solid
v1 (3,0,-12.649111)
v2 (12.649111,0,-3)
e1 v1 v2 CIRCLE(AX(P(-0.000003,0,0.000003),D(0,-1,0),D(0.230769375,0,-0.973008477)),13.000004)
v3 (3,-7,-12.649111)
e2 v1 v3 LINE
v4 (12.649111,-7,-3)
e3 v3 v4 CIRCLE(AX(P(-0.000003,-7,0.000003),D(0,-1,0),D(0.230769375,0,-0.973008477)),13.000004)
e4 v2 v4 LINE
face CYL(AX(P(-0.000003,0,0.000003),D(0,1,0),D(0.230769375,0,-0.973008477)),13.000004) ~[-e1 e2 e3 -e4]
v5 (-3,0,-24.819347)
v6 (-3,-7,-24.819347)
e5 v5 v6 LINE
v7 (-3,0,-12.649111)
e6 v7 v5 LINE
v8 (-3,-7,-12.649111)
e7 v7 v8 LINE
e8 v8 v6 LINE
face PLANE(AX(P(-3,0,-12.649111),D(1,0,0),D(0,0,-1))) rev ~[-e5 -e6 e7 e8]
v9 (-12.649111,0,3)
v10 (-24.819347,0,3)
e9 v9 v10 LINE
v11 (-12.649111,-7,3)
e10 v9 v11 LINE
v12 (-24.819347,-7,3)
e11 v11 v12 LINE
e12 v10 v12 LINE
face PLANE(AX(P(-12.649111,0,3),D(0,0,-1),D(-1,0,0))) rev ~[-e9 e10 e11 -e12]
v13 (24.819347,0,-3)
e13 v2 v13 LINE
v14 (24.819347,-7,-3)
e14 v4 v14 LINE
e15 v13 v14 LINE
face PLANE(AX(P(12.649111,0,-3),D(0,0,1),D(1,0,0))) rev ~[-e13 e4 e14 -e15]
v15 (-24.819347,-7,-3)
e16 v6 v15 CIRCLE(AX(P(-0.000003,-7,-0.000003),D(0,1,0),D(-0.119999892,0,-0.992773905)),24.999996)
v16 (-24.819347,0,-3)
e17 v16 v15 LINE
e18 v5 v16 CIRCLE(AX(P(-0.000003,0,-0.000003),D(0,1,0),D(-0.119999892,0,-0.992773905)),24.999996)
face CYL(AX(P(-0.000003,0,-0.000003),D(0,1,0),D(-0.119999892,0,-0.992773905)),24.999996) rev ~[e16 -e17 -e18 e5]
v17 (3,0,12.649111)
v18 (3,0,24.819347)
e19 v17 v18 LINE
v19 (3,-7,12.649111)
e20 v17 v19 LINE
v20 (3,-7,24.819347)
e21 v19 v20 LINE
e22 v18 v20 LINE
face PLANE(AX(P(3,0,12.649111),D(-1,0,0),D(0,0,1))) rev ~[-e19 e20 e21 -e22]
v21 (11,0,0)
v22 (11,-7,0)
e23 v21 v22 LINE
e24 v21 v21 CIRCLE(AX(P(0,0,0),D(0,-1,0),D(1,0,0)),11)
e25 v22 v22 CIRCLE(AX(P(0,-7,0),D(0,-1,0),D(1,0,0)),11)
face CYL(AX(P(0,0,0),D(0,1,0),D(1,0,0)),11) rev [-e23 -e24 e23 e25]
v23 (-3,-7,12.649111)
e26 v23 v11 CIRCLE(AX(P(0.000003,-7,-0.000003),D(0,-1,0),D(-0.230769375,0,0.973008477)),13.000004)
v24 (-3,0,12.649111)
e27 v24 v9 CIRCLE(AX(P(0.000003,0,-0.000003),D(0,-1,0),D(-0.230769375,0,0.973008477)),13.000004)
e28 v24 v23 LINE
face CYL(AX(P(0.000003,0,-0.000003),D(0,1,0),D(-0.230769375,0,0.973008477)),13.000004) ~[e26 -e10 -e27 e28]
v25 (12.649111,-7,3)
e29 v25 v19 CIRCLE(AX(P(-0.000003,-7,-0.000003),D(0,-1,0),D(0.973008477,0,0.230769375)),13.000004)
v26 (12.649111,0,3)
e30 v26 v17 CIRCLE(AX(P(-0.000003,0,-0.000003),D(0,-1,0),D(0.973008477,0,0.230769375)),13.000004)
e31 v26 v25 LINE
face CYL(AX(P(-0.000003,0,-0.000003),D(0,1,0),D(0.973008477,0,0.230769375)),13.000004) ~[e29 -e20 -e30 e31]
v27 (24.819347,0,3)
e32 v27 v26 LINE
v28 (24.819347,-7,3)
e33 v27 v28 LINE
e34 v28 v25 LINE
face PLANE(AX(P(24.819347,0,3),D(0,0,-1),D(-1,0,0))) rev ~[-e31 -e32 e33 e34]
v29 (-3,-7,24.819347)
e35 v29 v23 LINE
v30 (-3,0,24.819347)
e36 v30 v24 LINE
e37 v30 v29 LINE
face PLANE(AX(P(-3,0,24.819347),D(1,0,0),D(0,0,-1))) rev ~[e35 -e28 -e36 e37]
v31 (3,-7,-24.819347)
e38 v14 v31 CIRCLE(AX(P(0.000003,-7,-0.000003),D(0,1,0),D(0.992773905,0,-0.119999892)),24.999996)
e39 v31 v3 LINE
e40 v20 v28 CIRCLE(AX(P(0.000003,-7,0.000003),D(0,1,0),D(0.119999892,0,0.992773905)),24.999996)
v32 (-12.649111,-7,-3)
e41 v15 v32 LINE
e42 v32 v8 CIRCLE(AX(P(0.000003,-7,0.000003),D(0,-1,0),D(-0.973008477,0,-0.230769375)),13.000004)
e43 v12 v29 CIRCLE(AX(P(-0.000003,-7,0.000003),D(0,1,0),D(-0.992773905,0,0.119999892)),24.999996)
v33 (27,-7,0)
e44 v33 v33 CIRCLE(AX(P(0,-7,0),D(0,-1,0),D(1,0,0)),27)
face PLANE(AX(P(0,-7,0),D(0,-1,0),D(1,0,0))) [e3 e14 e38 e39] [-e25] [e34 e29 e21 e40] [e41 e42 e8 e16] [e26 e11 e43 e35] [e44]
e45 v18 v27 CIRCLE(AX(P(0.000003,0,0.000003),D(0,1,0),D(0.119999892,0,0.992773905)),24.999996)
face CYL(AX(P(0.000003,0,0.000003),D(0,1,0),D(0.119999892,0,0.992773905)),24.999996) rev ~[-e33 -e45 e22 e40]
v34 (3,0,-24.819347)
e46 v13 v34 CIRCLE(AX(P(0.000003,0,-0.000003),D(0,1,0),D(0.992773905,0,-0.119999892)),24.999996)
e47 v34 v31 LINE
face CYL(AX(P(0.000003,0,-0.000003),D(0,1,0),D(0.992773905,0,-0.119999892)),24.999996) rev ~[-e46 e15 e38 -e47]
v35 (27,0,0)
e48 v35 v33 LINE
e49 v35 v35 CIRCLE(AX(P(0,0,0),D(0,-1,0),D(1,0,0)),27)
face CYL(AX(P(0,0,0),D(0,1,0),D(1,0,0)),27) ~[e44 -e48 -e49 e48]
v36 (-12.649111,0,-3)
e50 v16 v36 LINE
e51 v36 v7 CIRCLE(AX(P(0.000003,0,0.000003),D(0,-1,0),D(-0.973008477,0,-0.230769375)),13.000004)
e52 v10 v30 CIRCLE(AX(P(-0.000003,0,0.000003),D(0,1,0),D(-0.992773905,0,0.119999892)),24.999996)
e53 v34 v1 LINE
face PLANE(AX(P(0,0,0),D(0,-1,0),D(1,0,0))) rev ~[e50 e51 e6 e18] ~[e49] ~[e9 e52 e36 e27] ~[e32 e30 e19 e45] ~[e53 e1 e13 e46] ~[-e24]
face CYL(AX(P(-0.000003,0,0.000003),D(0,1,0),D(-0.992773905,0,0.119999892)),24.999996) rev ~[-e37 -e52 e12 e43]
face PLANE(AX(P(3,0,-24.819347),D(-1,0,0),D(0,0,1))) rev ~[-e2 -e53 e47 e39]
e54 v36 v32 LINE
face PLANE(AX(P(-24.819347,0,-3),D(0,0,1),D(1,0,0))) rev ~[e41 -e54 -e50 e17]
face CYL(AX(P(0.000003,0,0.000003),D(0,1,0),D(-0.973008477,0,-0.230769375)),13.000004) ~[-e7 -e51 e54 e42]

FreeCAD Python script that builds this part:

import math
import FreeCAD as App
import Part
import Sketcher
from FreeCAD import Vector

doc = App.newDocument("Part")
params = doc.addObject("Spreadsheet::Sheet", "Params")
for row, (alias, value) in enumerate([
    ("sketch1_diameter", "54 mm"),
    ("sketch1_diameter2", "22 mm"),
    ("pad1_length", "7 mm"),
], start=1):
    params.set(f"A{row}", alias)
    params.set(f"B{row}", "=" + value)
    params.setAlias(f"B{row}", alias)

body = doc.addObject("PartDesign::Body", "Body")

sketch1 = body.newObject("Sketcher::SketchObject", "Sketch")
sketch1.AttachmentSupport = (doc.getObject("XZ_Plane"), [""])
sketch1.MapMode = "FlatFace"
sketch1.addGeometry([
    Part.Circle(Vector(0, 0, 0), Vector(0, 0, 1), 27),
    Part.LineSegment(Vector(13, -3, 0), Vector(25, -3, 0)),
    Part.ArcOfCircle(Part.Circle(Vector(0, 0, 0), Vector(0, 0, 1), 25), math.radians(-83), math.radians(-7)),
    Part.LineSegment(Vector(3, -25, 0), Vector(3, -13, 0)),
    Part.ArcOfCircle(Part.Circle(Vector(0, 0, 0), Vector(0, 0, 1), 13), math.radians(-77), math.radians(-13)),
    Part.ArcOfCircle(Part.Circle(Vector(0, 0, 0), Vector(0, 0, 1), 13), math.radians(-167), math.radians(-103)),
    Part.LineSegment(Vector(-3, -13, 0), Vector(-3, -25, 0)),
    Part.ArcOfCircle(Part.Circle(Vector(0, 0, 0), Vector(0, 0, 1), 25), math.radians(-173), math.radians(-97)),
    Part.LineSegment(Vector(-25, -3, 0), Vector(-13, -3, 0)),
    Part.LineSegment(Vector(-13, 3, 0), Vector(-25, 3, 0)),
    Part.ArcOfCircle(Part.Circle(Vector(0, 0, 0), Vector(0, 0, 1), 25), math.radians(97), math.radians(173)),
    Part.LineSegment(Vector(-3, 25, 0), Vector(-3, 13, 0)),
    Part.ArcOfCircle(Part.Circle(Vector(0, 0, 0), Vector(0, 0, 1), 13), math.radians(103), math.radians(167)),
    Part.Circle(Vector(0, 0, 0), Vector(0, 0, 1), 11),
    Part.ArcOfCircle(Part.Circle(Vector(0, 0, 0), Vector(0, 0, 1), 25), math.radians(7), math.radians(83)),
    Part.LineSegment(Vector(25, 3, 0), Vector(13, 3, 0)),
    Part.ArcOfCircle(Part.Circle(Vector(0, 0, 0), Vector(0, 0, 1), 13), math.radians(13), math.radians(77)),
    Part.LineSegment(Vector(3, 13, 0), Vector(3, 25, 0)),
], False)
sketch1.addConstraint([
    Sketcher.Constraint("Coincident", 1, 2, 2, 2),
    Sketcher.Constraint("Coincident", 2, 1, 3, 1),
    Sketcher.Constraint("Coincident", 3, 2, 4, 1),
    Sketcher.Constraint("Coincident", 4, 2, 1, 1),
    Sketcher.Constraint("Coincident", 5, 2, 6, 1),
    Sketcher.Constraint("Coincident", 6, 2, 7, 2),
    Sketcher.Constraint("Coincident", 7, 1, 8, 1),
    Sketcher.Constraint("Coincident", 8, 2, 5, 1),
    Sketcher.Constraint("Coincident", 9, 2, 10, 2),
    Sketcher.Constraint("Coincident", 10, 1, 11, 1),
    Sketcher.Constraint("Coincident", 11, 2, 12, 1),
    Sketcher.Constraint("Coincident", 12, 2, 9, 1),
    Sketcher.Constraint("Coincident", 14, 1, 15, 1),
    Sketcher.Constraint("Coincident", 15, 2, 16, 1),
    Sketcher.Constraint("Coincident", 16, 2, 17, 1),
    Sketcher.Constraint("Coincident", 17, 2, 14, 2),
    Sketcher.Constraint("Horizontal", 1),
    Sketcher.Constraint("Vertical", 3),
    Sketcher.Constraint("Vertical", 6),
    Sketcher.Constraint("Horizontal", 8),
    Sketcher.Constraint("Horizontal", 9),
    Sketcher.Constraint("Vertical", 11),
    Sketcher.Constraint("Horizontal", 15),
    Sketcher.Constraint("Vertical", 17),
    Sketcher.Constraint("Coincident", 0, 3, -1, 1),
    Sketcher.Constraint("Coincident", 2, 3, -1, 1),
    Sketcher.Constraint("Coincident", 4, 3, -1, 1),
    Sketcher.Constraint("Coincident", 5, 3, -1, 1),
    Sketcher.Constraint("Coincident", 7, 3, -1, 1),
    Sketcher.Constraint("Coincident", 10, 3, -1, 1),
    Sketcher.Constraint("Coincident", 12, 3, -1, 1),
    Sketcher.Constraint("Coincident", 13, 3, -1, 1),
    Sketcher.Constraint("Coincident", 14, 3, -1, 1),
    Sketcher.Constraint("Coincident", 16, 3, -1, 1),
    Sketcher.Constraint("Equal", 4, 5),
    Sketcher.Constraint("Equal", 2, 7),
    Sketcher.Constraint("Equal", 7, 10),
    Sketcher.Constraint("Equal", 5, 12),
    Sketcher.Constraint("Equal", 10, 14),
    Sketcher.Constraint("Equal", 12, 16),
    Sketcher.Constraint("Horizontal", 3, 2, 5, 2),
    Sketcher.Constraint("Horizontal", 4, 2, 7, 1),
    Sketcher.Constraint("Horizontal", 12, 2, 14, 1),
    Sketcher.Constraint("Horizontal", 11, 2, 16, 2),
    Sketcher.Constraint("Vertical", 7, 1, 9, 2),
    Sketcher.Constraint("Vertical", 6, 2, 10, 1),
    Sketcher.Constraint("Equal", 15, 3),
    Sketcher.Constraint("Diameter", 0, 54.0),
    Sketcher.Constraint("Diameter", 13, 22.0),
    Sketcher.Constraint("DistanceY", 1, 2, -1, 1, 3.0),
    Sketcher.Constraint("Radius", 2, 24.999996),
    Sketcher.Constraint("Radius", 4, 13.000004),
])
sketch1.setExpression("Constraints[47]", "Params.sketch1_diameter")
sketch1.setExpression("Constraints[48]", "Params.sketch1_diameter2")
pad1 = body.newObject("PartDesign::Pad", "Pad")
pad1.Profile = sketch1
pad1.setExpression("Length", "Params.pad1_length")

doc.recompute()
